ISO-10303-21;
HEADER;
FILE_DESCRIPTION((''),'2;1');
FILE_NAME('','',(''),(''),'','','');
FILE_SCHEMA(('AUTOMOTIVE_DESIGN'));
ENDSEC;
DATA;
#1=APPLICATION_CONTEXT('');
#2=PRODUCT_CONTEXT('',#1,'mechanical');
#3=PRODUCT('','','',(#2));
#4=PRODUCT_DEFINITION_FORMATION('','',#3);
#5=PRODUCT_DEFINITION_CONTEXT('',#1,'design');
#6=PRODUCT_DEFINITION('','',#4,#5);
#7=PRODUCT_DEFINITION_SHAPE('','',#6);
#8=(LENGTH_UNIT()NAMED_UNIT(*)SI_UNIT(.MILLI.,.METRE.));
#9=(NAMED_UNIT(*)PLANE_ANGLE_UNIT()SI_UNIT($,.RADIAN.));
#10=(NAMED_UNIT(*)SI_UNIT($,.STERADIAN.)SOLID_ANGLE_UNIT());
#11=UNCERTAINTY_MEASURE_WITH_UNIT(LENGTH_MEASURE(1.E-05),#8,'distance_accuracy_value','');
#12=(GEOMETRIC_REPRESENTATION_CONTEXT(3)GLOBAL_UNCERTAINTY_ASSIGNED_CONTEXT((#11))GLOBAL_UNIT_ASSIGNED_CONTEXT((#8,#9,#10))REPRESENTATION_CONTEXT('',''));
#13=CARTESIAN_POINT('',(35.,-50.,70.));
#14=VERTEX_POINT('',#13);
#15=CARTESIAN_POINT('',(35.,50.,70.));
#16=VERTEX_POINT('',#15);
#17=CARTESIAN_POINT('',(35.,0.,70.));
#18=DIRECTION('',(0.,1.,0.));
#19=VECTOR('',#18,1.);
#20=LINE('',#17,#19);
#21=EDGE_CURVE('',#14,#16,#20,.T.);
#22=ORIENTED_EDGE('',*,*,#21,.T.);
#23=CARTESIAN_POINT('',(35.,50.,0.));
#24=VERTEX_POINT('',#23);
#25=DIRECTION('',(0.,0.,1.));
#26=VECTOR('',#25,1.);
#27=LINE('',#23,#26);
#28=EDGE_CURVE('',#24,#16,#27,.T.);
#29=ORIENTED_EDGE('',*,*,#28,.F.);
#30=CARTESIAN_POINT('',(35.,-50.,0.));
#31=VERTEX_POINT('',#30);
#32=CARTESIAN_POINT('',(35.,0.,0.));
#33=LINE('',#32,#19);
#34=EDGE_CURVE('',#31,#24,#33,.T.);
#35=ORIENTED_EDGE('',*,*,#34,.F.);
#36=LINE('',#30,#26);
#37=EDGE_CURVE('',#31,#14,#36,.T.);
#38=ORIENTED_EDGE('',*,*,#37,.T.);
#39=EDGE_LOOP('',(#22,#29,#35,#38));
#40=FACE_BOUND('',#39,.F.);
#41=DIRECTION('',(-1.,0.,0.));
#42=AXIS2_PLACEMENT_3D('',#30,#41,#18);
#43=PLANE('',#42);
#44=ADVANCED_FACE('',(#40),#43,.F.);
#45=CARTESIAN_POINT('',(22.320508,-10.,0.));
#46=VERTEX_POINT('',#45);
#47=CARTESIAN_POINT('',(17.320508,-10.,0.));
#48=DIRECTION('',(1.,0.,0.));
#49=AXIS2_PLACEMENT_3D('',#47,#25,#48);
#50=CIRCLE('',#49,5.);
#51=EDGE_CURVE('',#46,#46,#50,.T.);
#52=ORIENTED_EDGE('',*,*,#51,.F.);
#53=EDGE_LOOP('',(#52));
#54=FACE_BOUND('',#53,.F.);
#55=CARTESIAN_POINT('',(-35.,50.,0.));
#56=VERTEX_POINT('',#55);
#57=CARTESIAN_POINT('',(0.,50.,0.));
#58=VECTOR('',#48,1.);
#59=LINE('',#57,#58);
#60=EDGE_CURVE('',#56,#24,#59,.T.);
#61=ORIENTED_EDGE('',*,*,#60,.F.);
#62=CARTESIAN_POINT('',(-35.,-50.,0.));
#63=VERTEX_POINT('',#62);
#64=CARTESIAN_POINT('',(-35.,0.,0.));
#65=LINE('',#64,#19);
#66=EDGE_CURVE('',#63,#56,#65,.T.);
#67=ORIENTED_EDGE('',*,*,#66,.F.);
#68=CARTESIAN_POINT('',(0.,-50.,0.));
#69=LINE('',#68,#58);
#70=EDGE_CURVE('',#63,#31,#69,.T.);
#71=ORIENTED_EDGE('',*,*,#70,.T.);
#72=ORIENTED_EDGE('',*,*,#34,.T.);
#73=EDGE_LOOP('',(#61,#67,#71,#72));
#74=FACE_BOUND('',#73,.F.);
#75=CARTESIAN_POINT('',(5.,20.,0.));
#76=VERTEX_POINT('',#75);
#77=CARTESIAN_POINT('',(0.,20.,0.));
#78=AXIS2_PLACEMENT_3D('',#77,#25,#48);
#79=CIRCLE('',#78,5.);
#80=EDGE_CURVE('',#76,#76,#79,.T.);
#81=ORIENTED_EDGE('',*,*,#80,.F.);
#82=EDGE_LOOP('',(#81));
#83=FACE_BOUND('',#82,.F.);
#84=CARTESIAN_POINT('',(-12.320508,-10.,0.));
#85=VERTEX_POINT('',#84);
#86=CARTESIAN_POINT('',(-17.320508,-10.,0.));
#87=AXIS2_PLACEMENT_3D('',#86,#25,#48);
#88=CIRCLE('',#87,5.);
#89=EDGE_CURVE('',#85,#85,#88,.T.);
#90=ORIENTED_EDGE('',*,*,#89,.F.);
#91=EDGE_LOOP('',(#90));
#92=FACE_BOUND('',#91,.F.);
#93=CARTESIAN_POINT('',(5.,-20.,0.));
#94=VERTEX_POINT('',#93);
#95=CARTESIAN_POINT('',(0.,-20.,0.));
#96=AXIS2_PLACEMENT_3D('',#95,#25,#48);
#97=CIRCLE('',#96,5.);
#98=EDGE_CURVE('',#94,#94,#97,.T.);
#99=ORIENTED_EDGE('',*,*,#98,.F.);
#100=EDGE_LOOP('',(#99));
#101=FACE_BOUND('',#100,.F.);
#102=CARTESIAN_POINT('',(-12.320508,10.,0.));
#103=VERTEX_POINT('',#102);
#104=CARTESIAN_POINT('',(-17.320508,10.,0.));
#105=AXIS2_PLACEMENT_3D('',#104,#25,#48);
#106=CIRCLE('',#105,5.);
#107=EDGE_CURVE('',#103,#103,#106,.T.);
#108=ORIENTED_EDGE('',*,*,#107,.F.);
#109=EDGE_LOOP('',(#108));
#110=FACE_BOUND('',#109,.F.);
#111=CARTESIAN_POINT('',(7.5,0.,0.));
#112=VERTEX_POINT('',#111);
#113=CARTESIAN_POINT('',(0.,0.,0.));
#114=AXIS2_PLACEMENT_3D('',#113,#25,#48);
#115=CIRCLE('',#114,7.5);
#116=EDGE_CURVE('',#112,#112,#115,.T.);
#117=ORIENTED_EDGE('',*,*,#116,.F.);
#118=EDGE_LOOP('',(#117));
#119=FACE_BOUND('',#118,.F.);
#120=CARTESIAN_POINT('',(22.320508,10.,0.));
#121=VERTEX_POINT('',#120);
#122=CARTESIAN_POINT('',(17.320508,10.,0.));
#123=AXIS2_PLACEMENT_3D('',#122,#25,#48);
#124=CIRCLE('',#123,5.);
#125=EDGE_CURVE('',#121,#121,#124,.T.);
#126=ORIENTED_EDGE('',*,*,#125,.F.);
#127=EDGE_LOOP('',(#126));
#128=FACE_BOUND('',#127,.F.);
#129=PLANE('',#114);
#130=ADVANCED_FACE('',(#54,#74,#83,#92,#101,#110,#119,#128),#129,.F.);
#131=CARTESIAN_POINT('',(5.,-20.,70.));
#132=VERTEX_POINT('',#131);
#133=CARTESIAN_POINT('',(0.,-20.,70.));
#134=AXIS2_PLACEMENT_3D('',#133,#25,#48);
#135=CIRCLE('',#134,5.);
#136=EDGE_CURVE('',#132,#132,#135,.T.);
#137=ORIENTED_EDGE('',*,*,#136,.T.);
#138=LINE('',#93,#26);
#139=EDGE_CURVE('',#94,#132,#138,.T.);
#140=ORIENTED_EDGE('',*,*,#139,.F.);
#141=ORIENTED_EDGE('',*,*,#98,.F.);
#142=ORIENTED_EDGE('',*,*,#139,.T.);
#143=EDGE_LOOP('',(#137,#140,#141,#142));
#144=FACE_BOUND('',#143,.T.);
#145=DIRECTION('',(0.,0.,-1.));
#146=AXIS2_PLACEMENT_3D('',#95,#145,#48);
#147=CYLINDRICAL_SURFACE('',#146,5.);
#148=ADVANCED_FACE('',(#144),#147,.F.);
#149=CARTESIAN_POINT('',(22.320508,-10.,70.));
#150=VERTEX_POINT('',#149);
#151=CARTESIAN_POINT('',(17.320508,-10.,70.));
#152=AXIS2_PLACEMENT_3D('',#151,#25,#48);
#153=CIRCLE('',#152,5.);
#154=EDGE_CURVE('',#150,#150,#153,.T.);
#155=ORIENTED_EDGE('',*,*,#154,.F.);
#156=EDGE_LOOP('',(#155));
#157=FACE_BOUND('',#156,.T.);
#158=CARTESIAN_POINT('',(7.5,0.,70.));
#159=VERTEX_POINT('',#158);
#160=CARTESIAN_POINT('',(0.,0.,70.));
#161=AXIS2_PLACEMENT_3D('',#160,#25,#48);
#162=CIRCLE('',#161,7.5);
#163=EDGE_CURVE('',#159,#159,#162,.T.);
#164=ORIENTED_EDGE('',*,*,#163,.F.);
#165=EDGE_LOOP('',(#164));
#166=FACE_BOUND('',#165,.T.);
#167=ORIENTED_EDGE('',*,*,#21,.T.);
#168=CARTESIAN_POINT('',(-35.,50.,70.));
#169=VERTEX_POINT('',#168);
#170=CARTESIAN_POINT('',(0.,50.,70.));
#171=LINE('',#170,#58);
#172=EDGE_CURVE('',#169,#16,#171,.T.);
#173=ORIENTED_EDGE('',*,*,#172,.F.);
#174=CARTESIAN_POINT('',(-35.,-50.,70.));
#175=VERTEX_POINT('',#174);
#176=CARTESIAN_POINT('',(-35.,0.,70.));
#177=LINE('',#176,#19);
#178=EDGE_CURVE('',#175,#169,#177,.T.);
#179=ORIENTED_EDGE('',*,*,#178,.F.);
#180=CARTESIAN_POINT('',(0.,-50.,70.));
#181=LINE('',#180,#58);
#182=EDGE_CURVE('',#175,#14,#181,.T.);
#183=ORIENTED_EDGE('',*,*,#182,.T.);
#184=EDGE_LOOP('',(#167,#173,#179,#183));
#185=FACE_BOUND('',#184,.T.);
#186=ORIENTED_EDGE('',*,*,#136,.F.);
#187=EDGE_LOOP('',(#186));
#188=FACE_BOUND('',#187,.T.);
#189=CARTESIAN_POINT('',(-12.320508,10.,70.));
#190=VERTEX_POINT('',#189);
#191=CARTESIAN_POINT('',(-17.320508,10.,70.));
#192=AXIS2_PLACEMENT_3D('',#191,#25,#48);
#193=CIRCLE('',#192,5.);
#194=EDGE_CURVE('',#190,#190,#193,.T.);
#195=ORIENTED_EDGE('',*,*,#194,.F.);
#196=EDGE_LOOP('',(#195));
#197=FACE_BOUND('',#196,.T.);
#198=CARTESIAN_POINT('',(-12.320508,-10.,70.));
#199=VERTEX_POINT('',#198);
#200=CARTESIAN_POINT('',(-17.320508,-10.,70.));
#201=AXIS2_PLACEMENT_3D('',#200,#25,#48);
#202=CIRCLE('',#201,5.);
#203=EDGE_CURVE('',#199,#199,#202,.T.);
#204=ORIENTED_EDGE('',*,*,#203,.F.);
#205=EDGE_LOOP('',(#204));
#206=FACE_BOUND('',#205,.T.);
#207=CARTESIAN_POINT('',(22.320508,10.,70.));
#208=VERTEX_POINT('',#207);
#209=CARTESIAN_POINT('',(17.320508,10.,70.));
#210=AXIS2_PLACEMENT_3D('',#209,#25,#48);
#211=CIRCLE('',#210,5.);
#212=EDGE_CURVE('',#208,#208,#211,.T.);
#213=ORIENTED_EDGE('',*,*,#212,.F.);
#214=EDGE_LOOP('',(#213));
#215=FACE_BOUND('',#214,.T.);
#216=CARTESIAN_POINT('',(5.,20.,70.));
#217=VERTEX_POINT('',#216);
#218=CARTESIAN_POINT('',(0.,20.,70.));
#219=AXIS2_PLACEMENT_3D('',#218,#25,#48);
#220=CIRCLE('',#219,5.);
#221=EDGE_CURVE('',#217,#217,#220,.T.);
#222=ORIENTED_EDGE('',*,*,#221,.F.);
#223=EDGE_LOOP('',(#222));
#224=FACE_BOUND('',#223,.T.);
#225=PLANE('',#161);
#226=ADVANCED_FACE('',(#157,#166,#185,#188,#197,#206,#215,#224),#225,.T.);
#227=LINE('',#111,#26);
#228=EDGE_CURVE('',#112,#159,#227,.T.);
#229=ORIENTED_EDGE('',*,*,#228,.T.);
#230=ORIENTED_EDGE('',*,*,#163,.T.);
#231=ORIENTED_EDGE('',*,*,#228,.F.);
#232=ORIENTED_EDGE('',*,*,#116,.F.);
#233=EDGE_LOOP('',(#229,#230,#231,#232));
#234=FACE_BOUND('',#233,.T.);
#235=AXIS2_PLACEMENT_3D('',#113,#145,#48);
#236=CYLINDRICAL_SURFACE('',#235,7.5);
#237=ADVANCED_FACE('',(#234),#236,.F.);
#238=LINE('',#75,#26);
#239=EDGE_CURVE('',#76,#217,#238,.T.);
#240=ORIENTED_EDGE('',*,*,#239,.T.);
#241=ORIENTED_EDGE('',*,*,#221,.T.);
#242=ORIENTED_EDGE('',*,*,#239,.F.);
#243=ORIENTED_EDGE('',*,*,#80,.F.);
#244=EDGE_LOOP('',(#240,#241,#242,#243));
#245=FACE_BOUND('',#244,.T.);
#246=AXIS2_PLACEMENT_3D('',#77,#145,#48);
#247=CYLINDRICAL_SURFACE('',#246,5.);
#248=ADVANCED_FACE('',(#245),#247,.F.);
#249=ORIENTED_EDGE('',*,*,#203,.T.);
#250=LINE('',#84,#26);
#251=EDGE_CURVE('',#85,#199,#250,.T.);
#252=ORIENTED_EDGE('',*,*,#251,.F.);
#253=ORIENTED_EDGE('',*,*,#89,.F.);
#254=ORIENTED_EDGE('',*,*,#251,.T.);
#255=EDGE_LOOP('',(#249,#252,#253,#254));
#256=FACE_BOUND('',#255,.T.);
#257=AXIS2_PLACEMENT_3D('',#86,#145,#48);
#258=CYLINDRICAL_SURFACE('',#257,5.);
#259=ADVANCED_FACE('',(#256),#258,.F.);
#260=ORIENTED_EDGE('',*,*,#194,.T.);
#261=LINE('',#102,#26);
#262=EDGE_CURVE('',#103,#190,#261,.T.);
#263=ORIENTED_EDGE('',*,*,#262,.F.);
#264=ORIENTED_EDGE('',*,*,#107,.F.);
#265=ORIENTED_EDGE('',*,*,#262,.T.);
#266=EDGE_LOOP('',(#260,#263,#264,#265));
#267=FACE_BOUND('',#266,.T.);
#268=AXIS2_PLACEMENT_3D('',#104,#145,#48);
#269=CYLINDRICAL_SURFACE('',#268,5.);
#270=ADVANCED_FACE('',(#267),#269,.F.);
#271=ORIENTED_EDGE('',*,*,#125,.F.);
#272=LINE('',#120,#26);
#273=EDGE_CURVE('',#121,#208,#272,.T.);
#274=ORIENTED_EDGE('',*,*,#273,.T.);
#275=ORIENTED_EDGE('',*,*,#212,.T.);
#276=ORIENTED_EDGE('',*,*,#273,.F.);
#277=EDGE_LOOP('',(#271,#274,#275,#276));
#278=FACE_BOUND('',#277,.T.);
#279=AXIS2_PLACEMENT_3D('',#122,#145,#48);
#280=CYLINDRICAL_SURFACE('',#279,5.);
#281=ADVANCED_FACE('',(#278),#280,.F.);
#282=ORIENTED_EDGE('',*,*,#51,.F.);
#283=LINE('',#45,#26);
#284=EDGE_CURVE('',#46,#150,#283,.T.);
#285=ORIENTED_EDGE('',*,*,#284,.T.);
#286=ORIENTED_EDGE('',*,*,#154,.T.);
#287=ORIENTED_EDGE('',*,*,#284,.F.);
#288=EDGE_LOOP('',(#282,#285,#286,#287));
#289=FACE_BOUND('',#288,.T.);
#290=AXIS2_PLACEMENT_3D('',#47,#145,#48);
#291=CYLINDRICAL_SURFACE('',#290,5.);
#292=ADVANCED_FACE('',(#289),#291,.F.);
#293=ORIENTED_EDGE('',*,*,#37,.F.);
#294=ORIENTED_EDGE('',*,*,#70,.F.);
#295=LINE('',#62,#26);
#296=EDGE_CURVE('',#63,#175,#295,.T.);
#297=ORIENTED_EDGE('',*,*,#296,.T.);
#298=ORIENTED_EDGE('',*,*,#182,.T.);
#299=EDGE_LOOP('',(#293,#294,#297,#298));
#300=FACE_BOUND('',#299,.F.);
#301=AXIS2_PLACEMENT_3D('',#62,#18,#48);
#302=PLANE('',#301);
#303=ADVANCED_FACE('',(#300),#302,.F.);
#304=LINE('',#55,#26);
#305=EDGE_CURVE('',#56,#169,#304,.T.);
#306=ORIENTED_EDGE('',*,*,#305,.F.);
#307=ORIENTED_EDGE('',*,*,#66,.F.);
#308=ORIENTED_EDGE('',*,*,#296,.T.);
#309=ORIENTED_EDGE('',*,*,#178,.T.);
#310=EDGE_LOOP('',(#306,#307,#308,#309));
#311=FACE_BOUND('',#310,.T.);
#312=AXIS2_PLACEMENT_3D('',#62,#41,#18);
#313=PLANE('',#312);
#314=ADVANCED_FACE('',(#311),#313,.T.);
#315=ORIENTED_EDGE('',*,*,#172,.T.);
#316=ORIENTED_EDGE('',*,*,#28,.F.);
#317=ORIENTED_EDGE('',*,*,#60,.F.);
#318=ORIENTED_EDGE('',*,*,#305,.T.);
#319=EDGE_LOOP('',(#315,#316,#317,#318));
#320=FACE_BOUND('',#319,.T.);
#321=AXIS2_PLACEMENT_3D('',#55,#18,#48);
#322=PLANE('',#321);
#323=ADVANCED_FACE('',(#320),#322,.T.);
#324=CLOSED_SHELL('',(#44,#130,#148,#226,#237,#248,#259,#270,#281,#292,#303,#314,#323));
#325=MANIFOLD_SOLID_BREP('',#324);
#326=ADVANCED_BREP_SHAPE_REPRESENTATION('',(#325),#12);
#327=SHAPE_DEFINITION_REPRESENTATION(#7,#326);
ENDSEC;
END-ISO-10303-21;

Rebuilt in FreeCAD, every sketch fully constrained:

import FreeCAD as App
import Part
import Sketcher

V = App.Vector
Q = App.Units.Quantity


def add_polygon(sketch, points):
    """Adds a closed chain of lines whose ends are joined by coincident constraints."""
    first, n = sketch.GeometryCount, len(points)
    for a, b in zip(points, points[1:] + points[:1]):
        sketch.addGeometry(Part.LineSegment(App.Vector(*a, 0), App.Vector(*b, 0)), False)
    for i in range(n):
        sketch.addConstraint(Sketcher.Constraint("Coincident", first + i, 2, first + (i + 1) % n, 1))

doc = App.newDocument("Part")
body = doc.addObject("PartDesign::Body", "Body")

sketch1 = body.newObject("Sketcher::SketchObject", "Sketch")
sketch1.AttachmentSupport = (doc.getObject("XY_Plane"), [""])
sketch1.MapMode = "FlatFace"
add_polygon(sketch1, [(-35, 50), (-35, -50), (35, -50), (35, 50)])
sketch1.addGeometry(Part.Circle(V(0, -20, 0), V(0, 0, 1), 5), False)
sketch1.addGeometry(Part.Circle(V(-17.320508, -10, 0), V(0, 0, 1), 5), False)
sketch1.addGeometry(Part.Circle(V(17.320508, -10, 0), V(0, 0, 1), 5), False)
sketch1.addGeometry(Part.Circle(V(-17.320508, 10, 0), V(0, 0, 1), 5), False)
sketch1.addGeometry(Part.Circle(V(0, 0, 0), V(0, 0, 1), 7.5), False)
sketch1.addGeometry(Part.Circle(V(0, 20, 0), V(0, 0, 1), 5), False)
sketch1.addGeometry(Part.Circle(V(17.320508, 10, 0), V(0, 0, 1), 5), False)
sketch1.addConstraint([
    Sketcher.Constraint("Vertical", 0),
    Sketcher.Constraint("Horizontal", 1),
    Sketcher.Constraint("Vertical", 2),
    Sketcher.Constraint("Horizontal", 3),
    Sketcher.Constraint("Coincident", 8, 3, -1, 1),
    Sketcher.Constraint("Equal", 4, 5),
    Sketcher.Constraint("Equal", 5, 6),
    Sketcher.Constraint("Equal", 6, 7),
    Sketcher.Constraint("Equal", 7, 9),
    Sketcher.Constraint("Equal", 9, 10),
    Sketcher.Constraint("Symmetric", 6, 3, 7, 3, -1, 1),
    Sketcher.Constraint("Symmetric", 4, 3, 9, 3, -1, 1),
    Sketcher.Constraint("Symmetric", 5, 3, 10, 3, -1, 1),
    Sketcher.Constraint("Symmetric", 0, 2, 2, 2, -1, 1),
    Sketcher.Constraint("Symmetric", 5, 3, 6, 3, -2),
    Sketcher.Constraint("PointOnObject", 4, 3, -2),
    Sketcher.Constraint("Diameter", 4, Q("10 mm")),
    Sketcher.Constraint("Diameter", 8, Q("15 mm")),
    Sketcher.Constraint("DistanceX", 1, 1, 1, 2, Q("70 mm")),
    Sketcher.Constraint("DistanceY", 0, 2, 0, 1, Q("100 mm")),
    Sketcher.Constraint("DistanceY", 4, 3, -1, 1, Q("20 mm")),
    Sketcher.Constraint("DistanceY", 5, 3, -1, 1, Q("10 mm")),
    Sketcher.Constraint("DistanceX", 5, 3, -1, 1, Q("17.320508 mm")),
])
pad1 = body.newObject("PartDesign::Pad", "Pad")
pad1.Profile = sketch1
pad1.Length = 70

doc.recompute()
